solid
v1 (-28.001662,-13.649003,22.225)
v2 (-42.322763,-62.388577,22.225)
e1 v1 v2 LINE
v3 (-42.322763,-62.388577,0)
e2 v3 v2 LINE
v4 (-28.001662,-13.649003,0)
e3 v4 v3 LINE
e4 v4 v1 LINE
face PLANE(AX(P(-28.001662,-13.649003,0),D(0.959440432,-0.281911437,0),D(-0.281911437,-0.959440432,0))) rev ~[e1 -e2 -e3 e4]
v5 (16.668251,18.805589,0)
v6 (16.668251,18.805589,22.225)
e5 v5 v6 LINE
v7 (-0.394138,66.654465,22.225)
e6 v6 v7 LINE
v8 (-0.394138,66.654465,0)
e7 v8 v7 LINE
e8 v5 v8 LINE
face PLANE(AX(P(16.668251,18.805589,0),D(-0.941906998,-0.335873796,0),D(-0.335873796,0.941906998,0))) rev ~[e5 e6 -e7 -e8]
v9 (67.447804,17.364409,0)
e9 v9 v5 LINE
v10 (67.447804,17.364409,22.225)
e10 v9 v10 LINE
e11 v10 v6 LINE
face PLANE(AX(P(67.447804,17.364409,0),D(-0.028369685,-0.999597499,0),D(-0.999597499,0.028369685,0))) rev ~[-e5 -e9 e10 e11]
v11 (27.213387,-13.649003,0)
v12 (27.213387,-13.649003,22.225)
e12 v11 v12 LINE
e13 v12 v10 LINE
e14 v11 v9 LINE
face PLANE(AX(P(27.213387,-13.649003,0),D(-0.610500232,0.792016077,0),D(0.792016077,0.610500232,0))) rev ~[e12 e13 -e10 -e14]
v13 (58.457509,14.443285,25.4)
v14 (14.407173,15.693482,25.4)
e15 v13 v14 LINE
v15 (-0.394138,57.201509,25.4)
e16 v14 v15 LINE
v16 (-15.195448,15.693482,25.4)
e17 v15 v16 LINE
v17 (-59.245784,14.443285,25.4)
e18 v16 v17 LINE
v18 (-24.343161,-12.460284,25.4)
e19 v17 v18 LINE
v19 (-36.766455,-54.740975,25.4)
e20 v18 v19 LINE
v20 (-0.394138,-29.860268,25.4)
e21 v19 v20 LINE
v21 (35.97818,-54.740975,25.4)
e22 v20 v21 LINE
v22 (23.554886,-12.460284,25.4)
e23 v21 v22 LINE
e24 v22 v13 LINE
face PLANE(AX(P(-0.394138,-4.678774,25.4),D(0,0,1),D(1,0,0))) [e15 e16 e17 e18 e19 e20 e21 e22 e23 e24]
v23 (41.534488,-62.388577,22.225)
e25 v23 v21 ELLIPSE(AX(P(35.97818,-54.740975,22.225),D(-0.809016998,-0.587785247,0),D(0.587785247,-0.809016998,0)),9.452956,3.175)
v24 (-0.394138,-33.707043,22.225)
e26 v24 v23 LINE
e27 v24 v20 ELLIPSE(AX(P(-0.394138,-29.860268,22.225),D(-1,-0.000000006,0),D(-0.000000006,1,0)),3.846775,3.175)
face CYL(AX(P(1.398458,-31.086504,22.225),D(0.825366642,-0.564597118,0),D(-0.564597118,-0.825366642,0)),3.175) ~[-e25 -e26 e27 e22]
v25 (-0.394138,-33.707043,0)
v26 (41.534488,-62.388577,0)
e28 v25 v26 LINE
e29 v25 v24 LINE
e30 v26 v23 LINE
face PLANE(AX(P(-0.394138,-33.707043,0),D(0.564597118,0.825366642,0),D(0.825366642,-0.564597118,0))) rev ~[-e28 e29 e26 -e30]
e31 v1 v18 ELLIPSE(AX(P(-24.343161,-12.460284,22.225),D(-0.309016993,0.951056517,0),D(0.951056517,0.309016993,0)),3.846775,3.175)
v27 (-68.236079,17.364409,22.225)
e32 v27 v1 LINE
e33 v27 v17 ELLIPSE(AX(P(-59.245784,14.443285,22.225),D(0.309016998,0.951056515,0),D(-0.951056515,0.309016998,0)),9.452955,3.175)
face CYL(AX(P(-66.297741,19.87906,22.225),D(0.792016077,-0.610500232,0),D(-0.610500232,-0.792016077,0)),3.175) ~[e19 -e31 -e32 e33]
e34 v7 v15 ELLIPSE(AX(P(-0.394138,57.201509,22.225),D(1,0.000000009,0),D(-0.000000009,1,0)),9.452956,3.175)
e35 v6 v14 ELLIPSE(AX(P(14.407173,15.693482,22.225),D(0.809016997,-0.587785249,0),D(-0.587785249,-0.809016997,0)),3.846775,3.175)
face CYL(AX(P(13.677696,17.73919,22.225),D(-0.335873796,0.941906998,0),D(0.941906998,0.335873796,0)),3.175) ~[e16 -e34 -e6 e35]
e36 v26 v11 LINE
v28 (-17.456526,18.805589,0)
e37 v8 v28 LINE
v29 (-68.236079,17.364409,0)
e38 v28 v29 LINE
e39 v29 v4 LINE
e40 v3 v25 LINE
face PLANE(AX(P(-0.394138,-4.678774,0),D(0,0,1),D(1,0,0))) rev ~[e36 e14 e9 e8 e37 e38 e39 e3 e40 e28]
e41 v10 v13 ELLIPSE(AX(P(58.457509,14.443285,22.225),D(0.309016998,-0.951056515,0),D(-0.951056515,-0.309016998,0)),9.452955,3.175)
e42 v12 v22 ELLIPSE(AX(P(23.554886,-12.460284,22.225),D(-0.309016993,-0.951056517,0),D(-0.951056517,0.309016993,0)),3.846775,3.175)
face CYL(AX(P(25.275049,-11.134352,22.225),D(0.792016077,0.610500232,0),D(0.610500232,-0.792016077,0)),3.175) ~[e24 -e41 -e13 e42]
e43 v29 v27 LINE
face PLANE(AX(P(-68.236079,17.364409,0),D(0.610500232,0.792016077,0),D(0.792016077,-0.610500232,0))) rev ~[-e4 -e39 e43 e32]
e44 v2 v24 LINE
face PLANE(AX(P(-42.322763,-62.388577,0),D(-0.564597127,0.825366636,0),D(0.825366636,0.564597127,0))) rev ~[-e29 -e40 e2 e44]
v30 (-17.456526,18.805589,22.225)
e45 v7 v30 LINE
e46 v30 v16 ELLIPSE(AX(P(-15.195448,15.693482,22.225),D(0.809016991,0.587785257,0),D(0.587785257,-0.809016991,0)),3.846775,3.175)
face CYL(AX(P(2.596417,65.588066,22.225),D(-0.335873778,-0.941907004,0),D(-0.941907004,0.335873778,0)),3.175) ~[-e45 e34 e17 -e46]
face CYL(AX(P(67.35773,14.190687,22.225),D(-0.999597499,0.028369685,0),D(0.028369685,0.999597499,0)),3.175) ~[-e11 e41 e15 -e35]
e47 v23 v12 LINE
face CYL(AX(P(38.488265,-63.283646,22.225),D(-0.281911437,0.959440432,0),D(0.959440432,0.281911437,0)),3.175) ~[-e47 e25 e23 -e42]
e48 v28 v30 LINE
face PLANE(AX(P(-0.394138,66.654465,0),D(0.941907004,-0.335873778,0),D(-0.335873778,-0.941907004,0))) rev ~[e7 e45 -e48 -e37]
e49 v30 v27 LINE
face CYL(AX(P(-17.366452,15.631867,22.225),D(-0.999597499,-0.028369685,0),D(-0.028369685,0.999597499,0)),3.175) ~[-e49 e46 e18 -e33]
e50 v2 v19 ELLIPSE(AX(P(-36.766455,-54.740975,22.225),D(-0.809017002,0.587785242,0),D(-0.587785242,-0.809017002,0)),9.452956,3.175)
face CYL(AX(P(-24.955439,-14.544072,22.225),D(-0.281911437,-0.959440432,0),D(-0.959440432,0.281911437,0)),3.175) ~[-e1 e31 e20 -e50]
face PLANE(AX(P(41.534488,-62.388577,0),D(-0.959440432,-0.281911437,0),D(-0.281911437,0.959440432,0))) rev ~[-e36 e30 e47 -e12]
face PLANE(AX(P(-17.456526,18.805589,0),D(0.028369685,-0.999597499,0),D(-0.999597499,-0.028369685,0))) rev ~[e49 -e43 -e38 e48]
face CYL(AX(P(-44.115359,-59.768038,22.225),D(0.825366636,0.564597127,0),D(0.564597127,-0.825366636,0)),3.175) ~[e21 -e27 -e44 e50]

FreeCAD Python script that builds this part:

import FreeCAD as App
import Part
import Sketcher

V = App.Vector
Q = App.Units.Quantity


def edges_at(feature, points):
    """Names of the edges that pass closest to the given points."""
    edges = feature.Shape.Edges
    near = lambda p: min(range(len(edges)), key=lambda i: edges[i].distToShape(Part.Vertex(*p))[0])
    return sorted({f"Edge{near(p) + 1}" for p in points})


def add_polygon(sketch, points):
    """Adds a closed chain of lines whose ends are joined by coincident constraints."""
    first, n = sketch.GeometryCount, len(points)
    for a, b in zip(points, points[1:] + points[:1]):
        sketch.addGeometry(Part.LineSegment(App.Vector(*a, 0), App.Vector(*b, 0)), False)
    for i in range(n):
        sketch.addConstraint(Sketcher.Constraint("Coincident", first + i, 2, first + (i + 1) % n, 1))

doc = App.newDocument("Part")
params = doc.addObject("Spreadsheet::Sheet", "Params")
for row, (alias, value) in enumerate([
    ("sketch1_length", "2 in"),
    ("pad1_length", "1 in"),
    ("fillet_radius", "0.125 in"),
], start=1):
    params.set(f"A{row}", alias)
    params.set(f"B{row}", "=" + value)
    params.setAlias(f"B{row}", alias)

body = doc.addObject("PartDesign::Body", "Body")

# Sketch on XY plane
sketch1 = body.newObject("Sketcher::SketchObject", "Sketch")
sketch1.AttachmentSupport = (doc.getObject("XY_Plane"), [""])
sketch1.MapMode = "FlatFace"
add_polygon(sketch1, [(67, 17), (17, 19), (0, 67), (-17, 19), (-68, 17), (-28, -14), (-42, -62), (0, -34), (42, -62), (27, -14)])  # lines 0-9
sketch1.addConstraint([
    Sketcher.Constraint("Horizontal", 0, 2, 2, 2),
    Sketcher.Constraint("Horizontal", 5, 2, 7, 2),
    Sketcher.Constraint("Horizontal", 4, 2, 8, 2),
    Sketcher.Constraint("Horizontal", 3, 2, 9, 2),
    Sketcher.Constraint("Vertical", 1, 2, 6, 2),
    Sketcher.Constraint("Equal", 0, 1),
    Sketcher.Constraint("Equal", 1, 2),
    Sketcher.Constraint("Equal", 2, 3),
    Sketcher.Constraint("Equal", 3, 4),
    Sketcher.Constraint("Equal", 4, 5),
    Sketcher.Constraint("Equal", 5, 6),
    Sketcher.Constraint("Equal", 6, 7),
    Sketcher.Constraint("Equal", 7, 8),
    Sketcher.Constraint("Distance", 0, Q("2 in")),
    Sketcher.Constraint("DistanceX", 5, 2, 4, 2, Q("14.321101 mm")),
    Sketcher.Constraint("DistanceX", -1, 1, 0, 2, Q("16.668251 mm")),
    Sketcher.Constraint("DistanceY", -1, 1, 0, 2, Q("18.805589 mm")),
    Sketcher.Constraint("DistanceX", 3, 2, -1, 1, Q("68.236079 mm")),
    Sketcher.Constraint("DistanceY", -1, 1, 3, 2, Q("17.364409 mm")),
    Sketcher.Constraint("DistanceX", 4, 2, -1, 1, Q("28.001662 mm")),
])
sketch1.setExpression("Constraints[23]", "Params.sketch1_length")
pad1 = body.newObject("PartDesign::Pad", "Pad")
pad1.Profile = sketch1
pad1.setExpression("Length", "Params.pad1_length")
doc.recompute()

fillet = body.newObject("PartDesign::Fillet", "Fillet")
fillet.Base = (pad1, edges_at(pad1, [
    (42.058, 18.085, 25.4),
    (8.137, 42.73, 25.4),
    (-8.925, 42.73, 25.4),
    (-42.846, 18.085, 25.4),
    (-48.119, 1.858, 25.4),
    (-35.162, -38.019, 25.4),
    (-21.358, -48.048, 25.4),
    (20.57, -48.048, 25.4),
    (34.374, -38.019, 25.4),
    (47.331, 1.858, 25.4),
]))
fillet.setExpression("Radius", "Params.fillet_radius")

doc.recompute()
